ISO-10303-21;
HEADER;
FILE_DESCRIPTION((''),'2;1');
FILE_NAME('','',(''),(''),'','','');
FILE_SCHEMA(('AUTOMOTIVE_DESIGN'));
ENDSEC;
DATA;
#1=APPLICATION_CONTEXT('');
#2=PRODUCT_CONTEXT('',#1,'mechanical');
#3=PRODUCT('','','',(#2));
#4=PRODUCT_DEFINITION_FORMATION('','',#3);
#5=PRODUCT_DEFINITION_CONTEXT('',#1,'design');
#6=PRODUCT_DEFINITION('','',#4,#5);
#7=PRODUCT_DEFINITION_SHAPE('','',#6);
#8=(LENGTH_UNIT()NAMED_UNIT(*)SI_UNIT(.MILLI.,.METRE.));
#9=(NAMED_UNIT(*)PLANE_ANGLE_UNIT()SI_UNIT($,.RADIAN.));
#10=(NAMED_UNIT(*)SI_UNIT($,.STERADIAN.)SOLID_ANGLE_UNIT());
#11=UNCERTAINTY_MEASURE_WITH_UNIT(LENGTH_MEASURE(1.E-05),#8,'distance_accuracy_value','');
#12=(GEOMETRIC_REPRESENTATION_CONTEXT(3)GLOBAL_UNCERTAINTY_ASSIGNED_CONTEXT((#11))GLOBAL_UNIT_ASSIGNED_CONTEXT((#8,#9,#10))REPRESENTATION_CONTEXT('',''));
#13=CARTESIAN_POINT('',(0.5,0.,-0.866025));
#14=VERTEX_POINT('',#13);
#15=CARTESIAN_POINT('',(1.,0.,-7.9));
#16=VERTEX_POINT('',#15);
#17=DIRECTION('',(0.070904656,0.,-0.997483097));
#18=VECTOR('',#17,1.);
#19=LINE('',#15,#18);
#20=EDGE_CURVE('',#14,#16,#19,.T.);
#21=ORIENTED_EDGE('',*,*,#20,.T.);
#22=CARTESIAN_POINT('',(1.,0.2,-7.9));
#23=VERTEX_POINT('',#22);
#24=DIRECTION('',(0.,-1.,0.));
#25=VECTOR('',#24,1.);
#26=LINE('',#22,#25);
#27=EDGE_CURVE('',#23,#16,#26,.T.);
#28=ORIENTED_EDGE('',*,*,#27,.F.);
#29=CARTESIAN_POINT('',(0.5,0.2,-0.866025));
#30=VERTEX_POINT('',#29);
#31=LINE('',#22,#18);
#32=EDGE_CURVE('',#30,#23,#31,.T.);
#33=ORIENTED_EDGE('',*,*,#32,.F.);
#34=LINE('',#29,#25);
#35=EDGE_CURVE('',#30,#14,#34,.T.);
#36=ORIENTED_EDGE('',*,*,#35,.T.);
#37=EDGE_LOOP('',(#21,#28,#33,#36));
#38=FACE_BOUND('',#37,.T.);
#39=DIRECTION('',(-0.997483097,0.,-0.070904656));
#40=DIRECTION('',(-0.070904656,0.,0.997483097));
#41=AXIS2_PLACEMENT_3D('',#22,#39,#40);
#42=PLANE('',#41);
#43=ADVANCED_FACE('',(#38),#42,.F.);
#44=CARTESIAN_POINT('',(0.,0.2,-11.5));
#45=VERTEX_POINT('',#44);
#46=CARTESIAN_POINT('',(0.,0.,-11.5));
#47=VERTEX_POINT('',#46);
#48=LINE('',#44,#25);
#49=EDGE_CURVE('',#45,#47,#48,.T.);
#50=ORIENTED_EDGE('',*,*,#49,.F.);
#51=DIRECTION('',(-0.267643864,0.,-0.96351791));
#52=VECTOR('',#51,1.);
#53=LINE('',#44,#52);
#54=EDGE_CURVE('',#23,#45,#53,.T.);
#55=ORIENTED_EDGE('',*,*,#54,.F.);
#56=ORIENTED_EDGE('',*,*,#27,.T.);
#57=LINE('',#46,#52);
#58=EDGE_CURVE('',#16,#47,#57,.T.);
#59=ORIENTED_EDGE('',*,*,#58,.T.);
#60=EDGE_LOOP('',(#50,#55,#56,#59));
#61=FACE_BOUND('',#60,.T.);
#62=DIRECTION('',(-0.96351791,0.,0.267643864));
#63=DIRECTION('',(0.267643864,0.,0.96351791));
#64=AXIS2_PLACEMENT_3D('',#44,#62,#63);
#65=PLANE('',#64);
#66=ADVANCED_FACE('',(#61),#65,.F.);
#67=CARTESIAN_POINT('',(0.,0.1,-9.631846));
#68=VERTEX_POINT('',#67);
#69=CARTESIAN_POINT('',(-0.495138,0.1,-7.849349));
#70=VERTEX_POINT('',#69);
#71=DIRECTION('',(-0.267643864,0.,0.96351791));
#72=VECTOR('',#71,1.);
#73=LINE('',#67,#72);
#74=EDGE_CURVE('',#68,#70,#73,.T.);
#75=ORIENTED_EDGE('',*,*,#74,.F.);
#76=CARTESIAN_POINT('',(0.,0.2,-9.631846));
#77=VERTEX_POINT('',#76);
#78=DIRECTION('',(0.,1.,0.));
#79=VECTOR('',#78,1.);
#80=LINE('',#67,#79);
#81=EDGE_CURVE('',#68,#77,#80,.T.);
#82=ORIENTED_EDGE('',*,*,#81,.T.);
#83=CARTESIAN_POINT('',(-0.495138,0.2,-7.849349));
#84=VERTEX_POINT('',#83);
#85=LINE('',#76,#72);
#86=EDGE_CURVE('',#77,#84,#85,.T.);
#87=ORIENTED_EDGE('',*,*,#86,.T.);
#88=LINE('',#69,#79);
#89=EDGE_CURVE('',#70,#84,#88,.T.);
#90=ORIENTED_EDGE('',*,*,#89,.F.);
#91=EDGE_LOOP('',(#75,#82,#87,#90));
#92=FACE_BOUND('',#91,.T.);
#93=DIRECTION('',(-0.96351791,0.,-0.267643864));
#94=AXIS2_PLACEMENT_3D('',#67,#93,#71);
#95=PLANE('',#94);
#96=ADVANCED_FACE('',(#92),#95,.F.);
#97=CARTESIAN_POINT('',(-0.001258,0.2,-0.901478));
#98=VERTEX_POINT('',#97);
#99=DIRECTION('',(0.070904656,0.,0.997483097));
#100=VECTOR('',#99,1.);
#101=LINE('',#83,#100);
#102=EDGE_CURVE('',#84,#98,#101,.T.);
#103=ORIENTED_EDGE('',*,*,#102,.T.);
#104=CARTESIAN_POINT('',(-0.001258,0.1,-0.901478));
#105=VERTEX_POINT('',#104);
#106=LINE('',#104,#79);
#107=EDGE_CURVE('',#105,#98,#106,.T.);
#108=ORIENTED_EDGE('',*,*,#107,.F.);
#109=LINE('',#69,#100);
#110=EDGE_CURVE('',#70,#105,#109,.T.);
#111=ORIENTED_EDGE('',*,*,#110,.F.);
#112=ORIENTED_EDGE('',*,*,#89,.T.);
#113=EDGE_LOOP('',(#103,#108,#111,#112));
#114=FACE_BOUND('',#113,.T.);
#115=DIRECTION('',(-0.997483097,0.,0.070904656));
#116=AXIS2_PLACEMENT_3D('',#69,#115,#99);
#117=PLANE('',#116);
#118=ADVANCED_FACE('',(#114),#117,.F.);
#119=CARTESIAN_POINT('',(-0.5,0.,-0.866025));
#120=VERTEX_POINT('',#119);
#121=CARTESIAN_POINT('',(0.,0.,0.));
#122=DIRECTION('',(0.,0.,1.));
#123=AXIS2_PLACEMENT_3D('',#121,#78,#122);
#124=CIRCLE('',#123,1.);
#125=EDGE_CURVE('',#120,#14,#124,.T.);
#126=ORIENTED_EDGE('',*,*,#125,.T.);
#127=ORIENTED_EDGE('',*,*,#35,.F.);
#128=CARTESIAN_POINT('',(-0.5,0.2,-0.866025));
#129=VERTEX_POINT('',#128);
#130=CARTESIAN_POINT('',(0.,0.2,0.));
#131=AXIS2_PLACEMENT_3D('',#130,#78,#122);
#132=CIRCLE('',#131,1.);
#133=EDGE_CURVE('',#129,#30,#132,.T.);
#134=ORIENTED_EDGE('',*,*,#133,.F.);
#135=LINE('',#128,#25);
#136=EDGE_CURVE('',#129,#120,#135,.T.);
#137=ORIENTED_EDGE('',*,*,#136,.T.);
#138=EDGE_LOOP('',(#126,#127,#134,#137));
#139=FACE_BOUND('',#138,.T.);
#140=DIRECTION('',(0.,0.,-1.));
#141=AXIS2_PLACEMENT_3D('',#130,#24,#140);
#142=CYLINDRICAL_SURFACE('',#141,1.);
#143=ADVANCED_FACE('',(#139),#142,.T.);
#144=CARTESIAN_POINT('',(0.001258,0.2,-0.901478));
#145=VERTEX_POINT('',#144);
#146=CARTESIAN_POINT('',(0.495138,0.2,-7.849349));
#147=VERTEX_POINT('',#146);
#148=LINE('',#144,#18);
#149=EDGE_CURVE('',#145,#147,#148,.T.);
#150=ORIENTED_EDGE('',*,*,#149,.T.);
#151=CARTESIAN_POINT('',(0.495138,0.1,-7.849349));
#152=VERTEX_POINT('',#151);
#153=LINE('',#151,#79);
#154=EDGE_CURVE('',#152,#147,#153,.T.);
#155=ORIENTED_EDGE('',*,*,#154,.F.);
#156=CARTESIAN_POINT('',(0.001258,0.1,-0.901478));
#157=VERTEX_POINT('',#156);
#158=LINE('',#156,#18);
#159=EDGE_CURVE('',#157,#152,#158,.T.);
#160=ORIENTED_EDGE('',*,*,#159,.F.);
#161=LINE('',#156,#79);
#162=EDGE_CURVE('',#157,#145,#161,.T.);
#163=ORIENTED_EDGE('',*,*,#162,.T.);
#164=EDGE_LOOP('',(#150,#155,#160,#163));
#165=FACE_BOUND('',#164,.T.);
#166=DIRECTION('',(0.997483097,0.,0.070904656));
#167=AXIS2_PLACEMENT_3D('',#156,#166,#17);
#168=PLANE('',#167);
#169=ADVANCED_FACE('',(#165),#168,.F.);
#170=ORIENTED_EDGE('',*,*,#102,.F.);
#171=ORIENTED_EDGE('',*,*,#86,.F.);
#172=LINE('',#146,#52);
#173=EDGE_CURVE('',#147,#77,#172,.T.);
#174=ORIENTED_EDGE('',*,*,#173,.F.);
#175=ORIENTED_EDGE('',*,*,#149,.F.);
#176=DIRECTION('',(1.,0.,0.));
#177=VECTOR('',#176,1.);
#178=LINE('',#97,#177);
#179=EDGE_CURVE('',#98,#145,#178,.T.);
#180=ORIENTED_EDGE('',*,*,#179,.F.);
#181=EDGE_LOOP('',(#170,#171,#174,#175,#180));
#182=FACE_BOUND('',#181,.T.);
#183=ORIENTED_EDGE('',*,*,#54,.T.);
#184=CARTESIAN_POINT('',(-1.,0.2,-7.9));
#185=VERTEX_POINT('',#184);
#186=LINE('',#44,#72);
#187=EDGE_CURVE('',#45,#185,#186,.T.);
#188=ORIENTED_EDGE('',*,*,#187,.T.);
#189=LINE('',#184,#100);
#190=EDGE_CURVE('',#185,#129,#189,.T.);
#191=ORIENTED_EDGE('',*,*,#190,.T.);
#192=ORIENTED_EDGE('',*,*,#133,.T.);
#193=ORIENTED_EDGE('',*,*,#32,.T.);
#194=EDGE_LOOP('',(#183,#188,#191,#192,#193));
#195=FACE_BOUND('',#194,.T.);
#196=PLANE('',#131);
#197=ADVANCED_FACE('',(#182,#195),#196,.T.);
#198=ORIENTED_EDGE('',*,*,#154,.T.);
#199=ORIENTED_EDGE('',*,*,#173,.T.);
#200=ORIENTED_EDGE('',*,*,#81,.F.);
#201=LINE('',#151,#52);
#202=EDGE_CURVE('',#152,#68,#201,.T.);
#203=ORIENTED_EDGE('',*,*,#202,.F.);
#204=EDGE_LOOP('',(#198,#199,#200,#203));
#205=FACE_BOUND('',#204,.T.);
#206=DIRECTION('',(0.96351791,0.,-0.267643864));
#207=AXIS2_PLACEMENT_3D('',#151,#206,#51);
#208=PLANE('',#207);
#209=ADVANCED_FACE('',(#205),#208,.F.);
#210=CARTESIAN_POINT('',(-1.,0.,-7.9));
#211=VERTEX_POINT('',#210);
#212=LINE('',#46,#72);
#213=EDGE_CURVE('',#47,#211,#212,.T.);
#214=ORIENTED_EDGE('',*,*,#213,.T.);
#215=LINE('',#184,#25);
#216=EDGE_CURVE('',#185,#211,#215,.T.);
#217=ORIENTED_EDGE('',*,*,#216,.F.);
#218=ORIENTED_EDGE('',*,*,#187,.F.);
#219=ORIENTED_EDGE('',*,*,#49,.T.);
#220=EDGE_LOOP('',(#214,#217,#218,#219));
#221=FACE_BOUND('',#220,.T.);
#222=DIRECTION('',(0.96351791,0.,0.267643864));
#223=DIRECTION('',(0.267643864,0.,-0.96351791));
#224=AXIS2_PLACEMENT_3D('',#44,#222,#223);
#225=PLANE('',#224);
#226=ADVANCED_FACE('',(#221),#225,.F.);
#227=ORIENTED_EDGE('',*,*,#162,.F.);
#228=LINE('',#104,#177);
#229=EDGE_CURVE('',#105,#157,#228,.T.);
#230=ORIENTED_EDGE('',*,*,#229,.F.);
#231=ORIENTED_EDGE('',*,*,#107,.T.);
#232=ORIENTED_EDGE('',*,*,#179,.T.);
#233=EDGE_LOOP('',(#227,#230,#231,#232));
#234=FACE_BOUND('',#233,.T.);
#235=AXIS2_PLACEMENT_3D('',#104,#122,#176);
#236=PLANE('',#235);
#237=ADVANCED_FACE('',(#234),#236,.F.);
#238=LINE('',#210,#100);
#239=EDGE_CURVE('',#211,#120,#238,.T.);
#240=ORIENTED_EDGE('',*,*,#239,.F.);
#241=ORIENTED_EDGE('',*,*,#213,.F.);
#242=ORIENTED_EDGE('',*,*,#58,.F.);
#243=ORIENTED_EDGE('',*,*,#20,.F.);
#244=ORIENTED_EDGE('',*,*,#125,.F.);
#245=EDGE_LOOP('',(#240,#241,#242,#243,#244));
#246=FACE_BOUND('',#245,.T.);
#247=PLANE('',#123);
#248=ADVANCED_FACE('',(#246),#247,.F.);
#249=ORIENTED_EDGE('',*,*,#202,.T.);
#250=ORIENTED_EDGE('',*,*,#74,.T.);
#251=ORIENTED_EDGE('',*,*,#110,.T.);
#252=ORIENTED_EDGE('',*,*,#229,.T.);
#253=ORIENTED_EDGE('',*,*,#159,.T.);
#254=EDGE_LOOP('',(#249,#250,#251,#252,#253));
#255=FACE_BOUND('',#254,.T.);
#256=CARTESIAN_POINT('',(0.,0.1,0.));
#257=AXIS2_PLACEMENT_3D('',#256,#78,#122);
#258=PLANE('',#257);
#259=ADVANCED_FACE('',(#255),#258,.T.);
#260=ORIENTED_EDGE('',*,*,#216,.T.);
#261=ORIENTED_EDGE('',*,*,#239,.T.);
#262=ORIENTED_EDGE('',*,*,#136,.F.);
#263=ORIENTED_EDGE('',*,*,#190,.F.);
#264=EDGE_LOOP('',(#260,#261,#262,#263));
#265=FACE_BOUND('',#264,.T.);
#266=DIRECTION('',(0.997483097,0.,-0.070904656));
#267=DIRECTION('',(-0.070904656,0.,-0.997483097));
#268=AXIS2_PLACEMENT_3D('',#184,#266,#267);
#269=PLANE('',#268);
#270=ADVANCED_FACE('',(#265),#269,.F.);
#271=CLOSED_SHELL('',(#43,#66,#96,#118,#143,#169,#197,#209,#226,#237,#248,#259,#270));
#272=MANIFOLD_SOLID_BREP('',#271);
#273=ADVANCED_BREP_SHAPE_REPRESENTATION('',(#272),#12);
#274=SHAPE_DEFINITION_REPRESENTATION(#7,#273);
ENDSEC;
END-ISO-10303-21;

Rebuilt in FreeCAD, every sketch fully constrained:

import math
import FreeCAD as App
import Part
import Sketcher
Q = App.Units.Quantity

doc = App.newDocument("Part")
body = doc.addObject("PartDesign::Body", "Body")

sketch1 = body.newObject("Sketcher::SketchObject", "Sketch")
sketch1.AttachmentSupport = (doc.getObject("XZ_Plane"), [""])
sketch1.MapMode = "FlatFace"
sketch1.addGeometry(Part.LineSegment(App.Vector(1, -7.9, 0), App.Vector(0, -11.5, 0)), False)
sketch1.addGeometry(Part.LineSegment(App.Vector(0, -11.5, 0), App.Vector(-1, -7.9, 0)), False)
sketch1.addGeometry(Part.LineSegment(App.Vector(-1, -7.9, 0), App.Vector(-0.5, -0.9, 0)), False)
sketch1.addGeometry(Part.ArcOfCircle(Part.Circle(App.Vector(0, 0, 0), App.Vector(0, 0, 1), 1), math.radians(-60), math.radians(240)), False)
sketch1.addGeometry(Part.LineSegment(App.Vector(0.5, -0.9, 0), App.Vector(1, -7.9, 0)), False)
sketch1.addConstraint(Sketcher.Constraint("Coincident", 0, 2, 1, 1))
sketch1.addConstraint(Sketcher.Constraint("Coincident", 1, 2, 2, 1))
sketch1.addConstraint(Sketcher.Constraint("Coincident", 2, 2, 3, 2))
sketch1.addConstraint(Sketcher.Constraint("Coincident", 3, 1, 4, 1))
sketch1.addConstraint(Sketcher.Constraint("Coincident", 4, 2, 0, 1))
sketch1.addConstraint(Sketcher.Constraint("Coincident", 3, 3, -1, 1))
sketch1.addConstraint(Sketcher.Constraint("Symmetric", 1, 2, 4, 2, -2))
sketch1.addConstraint(Sketcher.Constraint("PointOnObject", 0, 2, -2))
sketch1.addConstraint(Sketcher.Constraint("Horizontal", 2, 2, 3, 1))
sketch1.addConstraint(Sketcher.Constraint("Radius", 3, Q("1 mm")))
sketch1.addConstraint(Sketcher.Constraint("DistanceX", 1, 2, -1, 1, Q("1 mm")))
sketch1.addConstraint(Sketcher.Constraint("DistanceX", 2, 2, 3, 1, Q("1 mm")))
sketch1.addConstraint(Sketcher.Constraint("DistanceY", 0, 2, -1, 1, Q("11.5 mm")))
sketch1.addConstraint(Sketcher.Constraint("DistanceY", 1, 2, -1, 1, Q("7.9 mm")))
pad1 = body.newObject("PartDesign::Pad", "Pad")
pad1.Profile = sketch1
pad1.Length = 0.2
pad1.Reversed = True

sketch2 = body.newObject("Sketcher::SketchObject", "Sketch001")
sketch2.AttachmentSupport = (doc.getObject("XZ_Plane"), [""])
sketch2.MapMode = "FlatFace"
sketch2.AttachmentOffset = App.Placement(App.Vector(0, 0, -0.2), App.Rotation())
sketch2.addGeometry(Part.LineSegment(App.Vector(-0.0013, -0.9015, 0), App.Vector(0.0013, -0.9015, 0)), False)
sketch2.addGeometry(Part.LineSegment(App.Vector(0.0013, -0.9015, 0), App.Vector(0.4951, -7.8493, 0)), False)
sketch2.addGeometry(Part.LineSegment(App.Vector(0.4951, -7.8493, 0), App.Vector(0, -9.6318, 0)), False)
sketch2.addGeometry(Part.LineSegment(App.Vector(0, -9.6318, 0), App.Vector(-0.4951, -7.8493, 0)), False)
sketch2.addGeometry(Part.LineSegment(App.Vector(-0.4951, -7.8493, 0), App.Vector(-0.0013, -0.9015, 0)), False)
sketch2.addConstraint(Sketcher.Constraint("Coincident", 0, 2, 1, 1))
sketch2.addConstraint(Sketcher.Constraint("Coincident", 1, 2, 2, 1))
sketch2.addConstraint(Sketcher.Constraint("Coincident", 2, 2, 3, 1))
sketch2.addConstraint(Sketcher.Constraint("Coincident", 3, 2, 4, 1))
sketch2.addConstraint(Sketcher.Constraint("Coincident", 4, 2, 0, 1))
sketch2.addConstraint(Sketcher.Constraint("Horizontal", 0))
sketch2.addConstraint(Sketcher.Constraint("Symmetric", 1, 2, 3, 2, -2))
sketch2.addConstraint(Sketcher.Constraint("PointOnObject", 2, 2, -2))
sketch2.addConstraint(Sketcher.Constraint("Equal", 1, 4))
sketch2.addConstraint(Sketcher.Constraint("Distance", 2, Q("1.849988 mm")))
sketch2.addConstraint(Sketcher.Constraint("DistanceX", 0, 1, 0, 2, Q("0.002517 mm")))
sketch2.addConstraint(Sketcher.Constraint("DistanceY", 1, 2, -1, 1, Q("7.849349 mm")))
sketch2.addConstraint(Sketcher.Constraint("DistanceX", 0, 2, 1, 2, Q("0.493879 mm")))
sketch2.addConstraint(Sketcher.Constraint("DistanceY", 1, 2, 0, 2, Q("6.947872 mm")))
pocket1 = body.newObject("PartDesign::Pocket", "Pocket")
pocket1.Profile = sketch2
pocket1.Length = 0.1
pocket1.Reversed = True

doc.recompute()
